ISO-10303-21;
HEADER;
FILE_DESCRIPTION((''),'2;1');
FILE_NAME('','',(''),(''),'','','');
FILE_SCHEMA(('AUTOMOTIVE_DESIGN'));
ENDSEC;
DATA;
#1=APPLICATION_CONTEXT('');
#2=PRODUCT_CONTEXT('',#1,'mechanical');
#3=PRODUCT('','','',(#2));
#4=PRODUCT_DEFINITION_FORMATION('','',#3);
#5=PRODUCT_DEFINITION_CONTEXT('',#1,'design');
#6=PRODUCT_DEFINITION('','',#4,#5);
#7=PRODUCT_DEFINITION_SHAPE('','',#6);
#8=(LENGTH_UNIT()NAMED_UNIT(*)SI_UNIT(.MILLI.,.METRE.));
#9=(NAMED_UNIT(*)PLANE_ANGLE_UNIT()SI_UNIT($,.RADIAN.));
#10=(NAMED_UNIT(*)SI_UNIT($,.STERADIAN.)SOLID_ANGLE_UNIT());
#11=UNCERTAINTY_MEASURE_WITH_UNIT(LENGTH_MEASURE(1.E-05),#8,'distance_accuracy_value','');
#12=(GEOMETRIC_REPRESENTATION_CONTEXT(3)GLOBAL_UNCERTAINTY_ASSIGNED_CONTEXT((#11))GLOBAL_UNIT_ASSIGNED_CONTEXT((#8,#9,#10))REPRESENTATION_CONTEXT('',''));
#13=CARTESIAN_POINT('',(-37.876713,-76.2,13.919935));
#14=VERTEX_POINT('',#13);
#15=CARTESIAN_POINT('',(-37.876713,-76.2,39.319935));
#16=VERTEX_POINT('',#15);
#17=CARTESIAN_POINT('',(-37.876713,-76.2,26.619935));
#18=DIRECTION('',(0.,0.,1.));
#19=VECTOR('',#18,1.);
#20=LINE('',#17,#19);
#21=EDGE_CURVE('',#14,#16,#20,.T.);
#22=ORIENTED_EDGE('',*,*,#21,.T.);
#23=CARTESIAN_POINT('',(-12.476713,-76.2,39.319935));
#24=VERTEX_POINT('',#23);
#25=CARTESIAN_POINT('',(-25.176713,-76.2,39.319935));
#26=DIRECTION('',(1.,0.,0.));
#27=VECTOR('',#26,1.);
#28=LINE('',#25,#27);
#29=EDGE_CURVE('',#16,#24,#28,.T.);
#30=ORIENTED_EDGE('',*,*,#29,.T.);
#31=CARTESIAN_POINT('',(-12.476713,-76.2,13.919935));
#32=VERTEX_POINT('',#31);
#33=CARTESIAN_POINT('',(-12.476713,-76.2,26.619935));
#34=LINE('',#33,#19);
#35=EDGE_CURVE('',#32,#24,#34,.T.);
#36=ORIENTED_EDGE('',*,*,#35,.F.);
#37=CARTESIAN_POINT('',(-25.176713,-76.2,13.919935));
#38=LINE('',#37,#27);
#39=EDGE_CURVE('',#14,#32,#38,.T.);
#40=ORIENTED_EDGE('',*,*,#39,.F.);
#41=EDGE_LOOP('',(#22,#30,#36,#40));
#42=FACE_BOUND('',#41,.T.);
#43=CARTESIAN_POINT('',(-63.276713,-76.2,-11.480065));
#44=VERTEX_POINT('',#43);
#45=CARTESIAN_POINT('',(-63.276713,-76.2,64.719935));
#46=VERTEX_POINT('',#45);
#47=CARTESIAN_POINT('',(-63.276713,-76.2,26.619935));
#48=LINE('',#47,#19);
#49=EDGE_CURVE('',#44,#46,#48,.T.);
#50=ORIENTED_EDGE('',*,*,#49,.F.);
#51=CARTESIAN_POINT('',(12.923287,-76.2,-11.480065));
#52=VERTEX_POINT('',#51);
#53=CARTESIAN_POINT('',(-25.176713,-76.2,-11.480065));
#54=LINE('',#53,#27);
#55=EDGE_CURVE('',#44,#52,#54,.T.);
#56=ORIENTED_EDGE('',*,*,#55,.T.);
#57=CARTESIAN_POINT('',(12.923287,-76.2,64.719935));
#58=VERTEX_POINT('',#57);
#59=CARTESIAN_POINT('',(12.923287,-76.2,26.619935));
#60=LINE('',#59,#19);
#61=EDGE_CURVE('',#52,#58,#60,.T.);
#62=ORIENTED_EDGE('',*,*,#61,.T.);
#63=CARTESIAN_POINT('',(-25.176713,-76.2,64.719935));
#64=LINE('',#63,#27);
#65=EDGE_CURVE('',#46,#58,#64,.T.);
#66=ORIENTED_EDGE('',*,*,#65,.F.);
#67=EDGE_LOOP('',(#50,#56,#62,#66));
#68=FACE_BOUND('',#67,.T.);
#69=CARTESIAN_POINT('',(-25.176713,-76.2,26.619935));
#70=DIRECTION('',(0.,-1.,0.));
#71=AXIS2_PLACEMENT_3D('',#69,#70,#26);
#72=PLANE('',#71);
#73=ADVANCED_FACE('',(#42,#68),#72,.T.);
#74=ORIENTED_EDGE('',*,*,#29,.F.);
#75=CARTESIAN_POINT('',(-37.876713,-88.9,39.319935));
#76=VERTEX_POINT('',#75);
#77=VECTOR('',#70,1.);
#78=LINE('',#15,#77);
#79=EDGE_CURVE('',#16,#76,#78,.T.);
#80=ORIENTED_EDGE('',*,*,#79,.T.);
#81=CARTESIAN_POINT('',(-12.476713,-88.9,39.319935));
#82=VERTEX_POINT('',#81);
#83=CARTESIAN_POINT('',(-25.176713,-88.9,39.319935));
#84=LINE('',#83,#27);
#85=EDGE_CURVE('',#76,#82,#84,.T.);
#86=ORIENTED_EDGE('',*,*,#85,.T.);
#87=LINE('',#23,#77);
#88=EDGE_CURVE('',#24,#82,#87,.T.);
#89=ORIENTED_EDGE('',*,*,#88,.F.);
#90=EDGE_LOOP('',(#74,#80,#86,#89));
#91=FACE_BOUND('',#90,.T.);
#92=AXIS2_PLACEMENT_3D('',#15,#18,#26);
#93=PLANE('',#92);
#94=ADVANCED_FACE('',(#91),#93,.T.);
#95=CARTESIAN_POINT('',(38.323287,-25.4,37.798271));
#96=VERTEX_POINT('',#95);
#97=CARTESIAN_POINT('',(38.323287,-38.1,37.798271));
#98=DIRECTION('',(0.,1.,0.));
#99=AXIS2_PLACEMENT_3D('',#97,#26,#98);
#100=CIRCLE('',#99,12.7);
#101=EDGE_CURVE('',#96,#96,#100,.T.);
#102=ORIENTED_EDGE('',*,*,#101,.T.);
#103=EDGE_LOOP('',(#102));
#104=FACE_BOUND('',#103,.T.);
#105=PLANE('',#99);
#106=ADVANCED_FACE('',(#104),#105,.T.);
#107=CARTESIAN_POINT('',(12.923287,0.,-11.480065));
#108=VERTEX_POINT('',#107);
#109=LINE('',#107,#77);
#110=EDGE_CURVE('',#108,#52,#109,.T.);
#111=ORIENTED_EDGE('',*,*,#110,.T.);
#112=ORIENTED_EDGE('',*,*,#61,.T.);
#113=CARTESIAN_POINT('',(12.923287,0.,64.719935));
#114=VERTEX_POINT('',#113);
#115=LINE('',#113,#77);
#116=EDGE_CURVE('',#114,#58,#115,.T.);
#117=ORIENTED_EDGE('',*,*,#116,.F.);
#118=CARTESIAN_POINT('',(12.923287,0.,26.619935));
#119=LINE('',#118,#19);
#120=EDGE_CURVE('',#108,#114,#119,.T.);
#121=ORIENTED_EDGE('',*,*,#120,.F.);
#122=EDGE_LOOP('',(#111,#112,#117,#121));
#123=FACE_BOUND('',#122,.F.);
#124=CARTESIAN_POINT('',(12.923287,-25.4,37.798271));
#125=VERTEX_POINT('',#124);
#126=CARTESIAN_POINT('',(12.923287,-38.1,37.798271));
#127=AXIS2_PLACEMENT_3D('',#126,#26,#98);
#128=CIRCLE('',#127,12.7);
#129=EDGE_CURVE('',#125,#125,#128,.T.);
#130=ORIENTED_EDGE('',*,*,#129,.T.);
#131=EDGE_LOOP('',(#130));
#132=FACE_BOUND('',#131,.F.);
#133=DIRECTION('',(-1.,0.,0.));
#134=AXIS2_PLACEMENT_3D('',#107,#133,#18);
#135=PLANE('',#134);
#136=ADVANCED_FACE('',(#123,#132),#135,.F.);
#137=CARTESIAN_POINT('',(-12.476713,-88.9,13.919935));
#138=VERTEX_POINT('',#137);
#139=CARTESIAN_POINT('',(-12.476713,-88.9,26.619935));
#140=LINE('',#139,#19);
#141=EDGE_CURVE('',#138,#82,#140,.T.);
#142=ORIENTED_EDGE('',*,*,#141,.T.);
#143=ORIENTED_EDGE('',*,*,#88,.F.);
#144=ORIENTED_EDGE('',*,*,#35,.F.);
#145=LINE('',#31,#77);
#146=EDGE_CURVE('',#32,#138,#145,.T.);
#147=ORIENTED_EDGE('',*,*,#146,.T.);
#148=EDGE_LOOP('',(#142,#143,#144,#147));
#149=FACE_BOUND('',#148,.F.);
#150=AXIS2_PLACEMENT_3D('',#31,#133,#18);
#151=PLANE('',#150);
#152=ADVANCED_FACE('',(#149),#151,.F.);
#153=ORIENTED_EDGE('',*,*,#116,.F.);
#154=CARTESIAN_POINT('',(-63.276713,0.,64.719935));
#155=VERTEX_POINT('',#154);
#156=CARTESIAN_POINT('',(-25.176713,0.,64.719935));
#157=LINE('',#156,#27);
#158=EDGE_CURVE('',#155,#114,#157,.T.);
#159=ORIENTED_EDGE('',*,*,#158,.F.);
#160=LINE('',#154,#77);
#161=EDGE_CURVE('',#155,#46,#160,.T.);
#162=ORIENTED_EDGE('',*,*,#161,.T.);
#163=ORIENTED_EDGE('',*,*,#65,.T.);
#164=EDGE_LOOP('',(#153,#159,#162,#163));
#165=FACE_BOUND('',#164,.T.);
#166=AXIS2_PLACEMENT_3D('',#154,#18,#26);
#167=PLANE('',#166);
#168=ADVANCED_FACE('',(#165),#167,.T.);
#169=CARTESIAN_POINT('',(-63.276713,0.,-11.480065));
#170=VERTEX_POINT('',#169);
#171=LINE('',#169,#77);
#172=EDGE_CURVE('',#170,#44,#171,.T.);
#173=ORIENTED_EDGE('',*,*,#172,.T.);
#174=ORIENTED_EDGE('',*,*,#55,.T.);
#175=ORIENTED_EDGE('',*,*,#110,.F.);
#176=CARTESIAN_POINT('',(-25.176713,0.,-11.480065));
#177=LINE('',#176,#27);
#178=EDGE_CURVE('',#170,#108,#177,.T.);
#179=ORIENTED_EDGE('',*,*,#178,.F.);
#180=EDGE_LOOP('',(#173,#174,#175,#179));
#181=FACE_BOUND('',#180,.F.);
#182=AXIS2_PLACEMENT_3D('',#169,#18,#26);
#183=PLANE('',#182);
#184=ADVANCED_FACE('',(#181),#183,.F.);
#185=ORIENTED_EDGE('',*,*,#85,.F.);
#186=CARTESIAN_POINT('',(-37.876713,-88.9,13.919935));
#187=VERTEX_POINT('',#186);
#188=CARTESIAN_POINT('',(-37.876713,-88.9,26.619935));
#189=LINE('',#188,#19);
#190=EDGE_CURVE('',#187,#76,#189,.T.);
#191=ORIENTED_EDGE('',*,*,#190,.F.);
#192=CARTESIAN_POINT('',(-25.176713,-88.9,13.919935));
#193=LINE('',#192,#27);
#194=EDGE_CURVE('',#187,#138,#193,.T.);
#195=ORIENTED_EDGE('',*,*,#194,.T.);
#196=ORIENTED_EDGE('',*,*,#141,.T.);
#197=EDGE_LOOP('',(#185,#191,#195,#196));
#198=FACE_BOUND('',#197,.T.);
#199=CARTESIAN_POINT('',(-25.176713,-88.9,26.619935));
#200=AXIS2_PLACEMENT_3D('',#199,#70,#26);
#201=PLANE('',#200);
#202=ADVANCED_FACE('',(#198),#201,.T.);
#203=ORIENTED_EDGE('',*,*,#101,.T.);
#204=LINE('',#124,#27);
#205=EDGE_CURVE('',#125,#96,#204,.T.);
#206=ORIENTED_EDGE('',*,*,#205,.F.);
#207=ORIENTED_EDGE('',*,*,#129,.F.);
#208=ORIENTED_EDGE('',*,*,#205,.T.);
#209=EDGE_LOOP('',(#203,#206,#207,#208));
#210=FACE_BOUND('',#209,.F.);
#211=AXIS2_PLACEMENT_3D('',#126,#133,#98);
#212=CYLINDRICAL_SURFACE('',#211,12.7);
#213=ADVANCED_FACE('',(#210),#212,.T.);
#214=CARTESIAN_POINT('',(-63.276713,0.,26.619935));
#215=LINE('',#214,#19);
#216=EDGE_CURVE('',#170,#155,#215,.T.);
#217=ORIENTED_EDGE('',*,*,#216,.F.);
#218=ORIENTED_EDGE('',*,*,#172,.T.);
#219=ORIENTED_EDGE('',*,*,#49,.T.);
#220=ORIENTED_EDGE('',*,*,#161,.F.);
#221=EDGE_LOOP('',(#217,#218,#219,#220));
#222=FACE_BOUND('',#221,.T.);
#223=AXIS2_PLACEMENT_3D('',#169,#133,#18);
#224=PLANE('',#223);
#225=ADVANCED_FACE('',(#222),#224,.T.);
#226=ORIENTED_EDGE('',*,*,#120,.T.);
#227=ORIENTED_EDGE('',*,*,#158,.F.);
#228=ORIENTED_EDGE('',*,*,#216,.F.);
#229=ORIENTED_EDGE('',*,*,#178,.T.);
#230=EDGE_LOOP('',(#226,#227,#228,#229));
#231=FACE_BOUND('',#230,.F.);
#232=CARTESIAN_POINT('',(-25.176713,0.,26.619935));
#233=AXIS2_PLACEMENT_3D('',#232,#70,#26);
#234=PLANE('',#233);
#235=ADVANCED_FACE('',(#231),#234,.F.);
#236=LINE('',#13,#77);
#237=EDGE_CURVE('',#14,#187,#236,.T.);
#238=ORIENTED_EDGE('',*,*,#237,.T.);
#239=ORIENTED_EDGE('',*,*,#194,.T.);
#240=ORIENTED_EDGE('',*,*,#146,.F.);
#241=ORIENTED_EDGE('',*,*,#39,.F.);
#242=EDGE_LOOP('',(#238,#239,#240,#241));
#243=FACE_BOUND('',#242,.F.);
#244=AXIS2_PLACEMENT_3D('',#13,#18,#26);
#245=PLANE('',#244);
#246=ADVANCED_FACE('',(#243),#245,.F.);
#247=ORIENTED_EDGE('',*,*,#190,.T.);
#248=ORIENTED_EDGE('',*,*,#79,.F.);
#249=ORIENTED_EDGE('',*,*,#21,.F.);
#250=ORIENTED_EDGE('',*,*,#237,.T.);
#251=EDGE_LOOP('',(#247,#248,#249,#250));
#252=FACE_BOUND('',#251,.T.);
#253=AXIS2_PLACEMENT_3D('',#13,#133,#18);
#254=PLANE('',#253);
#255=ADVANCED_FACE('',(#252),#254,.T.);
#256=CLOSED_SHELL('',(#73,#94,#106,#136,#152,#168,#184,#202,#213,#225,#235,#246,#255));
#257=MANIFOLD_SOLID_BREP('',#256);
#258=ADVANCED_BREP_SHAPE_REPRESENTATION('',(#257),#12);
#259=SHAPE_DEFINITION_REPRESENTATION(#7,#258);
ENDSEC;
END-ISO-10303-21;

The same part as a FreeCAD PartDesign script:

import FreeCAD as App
import Part
import Sketcher
Q = App.Units.Quantity

doc = App.newDocument("Part")
body = doc.addObject("PartDesign::Body", "Body")

# Sketch on XZ plane
sketch1 = body.newObject("Sketcher::SketchObject", "Sketch")
sketch1.AttachmentSupport = (doc.getObject("XZ_Plane"), [""])
sketch1.MapMode = "FlatFace"
sketch1.addGeometry([
    Part.LineSegment(App.Vector(-63, 65, 0), App.Vector(-63, -11, 0)),
    Part.LineSegment(App.Vector(-63, -11, 0), App.Vector(13, -11, 0)),
    Part.LineSegment(App.Vector(13, -11, 0), App.Vector(13, 65, 0)),
    Part.LineSegment(App.Vector(13, 65, 0), App.Vector(-63, 65, 0)),
], False)
sketch1.addConstraint([
    Sketcher.Constraint("Coincident", 0, 2, 1, 1),
    Sketcher.Constraint("Coincident", 1, 2, 2, 1),
    Sketcher.Constraint("Coincident", 2, 2, 3, 1),
    Sketcher.Constraint("Coincident", 3, 2, 0, 1),
    Sketcher.Constraint("Vertical", 0),
    Sketcher.Constraint("Horizontal", 1),
    Sketcher.Constraint("Vertical", 2),
    Sketcher.Constraint("Horizontal", 3),
    Sketcher.Constraint("Equal", 3, 0),
    Sketcher.Constraint("DistanceX", 1, 1, 1, 2, Q("3 in")),
    Sketcher.Constraint("DistanceX", 0, 2, -1, 1, 63.276713),
    Sketcher.Constraint("DistanceY", 0, 2, -1, 1, 11.480065),
])
pad1 = body.newObject("PartDesign::Pad", "Pad")
pad1.Profile = sketch1
pad1.Length = Q("3 in")

# Sketch on XZ plane
sketch2 = body.newObject("Sketcher::SketchObject", "Sketch001")
sketch2.AttachmentSupport = (doc.getObject("XZ_Plane"), [""])
sketch2.MapMode = "FlatFace"
sketch2.AttachmentOffset = App.Placement(App.Vector(0, 0, 3 * 25.4), App.Rotation())
sketch2.addGeometry([
    Part.LineSegment(App.Vector(-38, 39, 0), App.Vector(-38, 14, 0)),
    Part.LineSegment(App.Vector(-38, 14, 0), App.Vector(-12, 14, 0)),
    Part.LineSegment(App.Vector(-12, 14, 0), App.Vector(-12, 39, 0)),
    Part.LineSegment(App.Vector(-12, 39, 0), App.Vector(-38, 39, 0)),
], False)
sketch2.addConstraint([
    Sketcher.Constraint("Coincident", 0, 2, 1, 1),
    Sketcher.Constraint("Coincident", 1, 2, 2, 1),
    Sketcher.Constraint("Coincident", 2, 2, 3, 1),
    Sketcher.Constraint("Coincident", 3, 2, 0, 1),
    Sketcher.Constraint("Vertical", 0),
    Sketcher.Constraint("Horizontal", 1),
    Sketcher.Constraint("Vertical", 2),
    Sketcher.Constraint("Horizontal", 3),
    Sketcher.Constraint("Equal", 3, 0),
    Sketcher.Constraint("DistanceX", 1, 1, 1, 2, Q("1 in")),
    Sketcher.Constraint("DistanceX", 0, 2, -1, 1, 37.876713),
    Sketcher.Constraint("DistanceY", -1, 1, 0, 2, 13.919935),
])
pad2 = body.newObject("PartDesign::Pad", "Pad001")
pad2.Profile = sketch2
pad2.Length = Q("0.5 in")

# Sketch on YZ plane
sketch3 = body.newObject("Sketcher::SketchObject", "Sketch002")
sketch3.AttachmentSupport = (doc.getObject("YZ_Plane"), [""])
sketch3.MapMode = "FlatFace"
sketch3.AttachmentOffset = App.Placement(App.Vector(0, 0, 12.923287), App.Rotation())
sketch3.addGeometry(Part.Circle(App.Vector(-38, 38, 0), App.Vector(0, 0, 1), 13), False)
sketch3.addConstraint([
    Sketcher.Constraint("Diameter", 0, Q("1 in")),
    Sketcher.Constraint("DistanceX", 0, 3, -1, 1, Q("1.5 in")),
    Sketcher.Constraint("DistanceY", -1, 1, 0, 3, 37.798271),
])
pad3 = body.newObject("PartDesign::Pad", "Pad002")
pad3.Profile = sketch3
pad3.Length = Q("1 in")

# Sketch on YZ plane
sketch4 = body.newObject("Sketcher::SketchObject", "Sketch003")
sketch4.AttachmentSupport = (doc.getObject("YZ_Plane"), [""])
sketch4.MapMode = "FlatFace"
sketch4.AttachmentOffset = App.Placement(App.Vector(0, 0, 12.923287), App.Rotation())
sketch4.addGeometry(Part.Circle(App.Vector(-38, 38, 0), App.Vector(0, 0, 1), 13), False)
sketch4.addConstraint([
    Sketcher.Constraint("Diameter", 0, Q("1 in")),
    Sketcher.Constraint("DistanceX", 0, 3, -1, 1, Q("1.5 in")),
    Sketcher.Constraint("DistanceY", -1, 1, 0, 3, 37.798271),
])
pad4 = body.newObject("PartDesign::Pad", "Pad003")
pad4.Profile = sketch4
pad4.Length = Q("1 in")

doc.recompute()
